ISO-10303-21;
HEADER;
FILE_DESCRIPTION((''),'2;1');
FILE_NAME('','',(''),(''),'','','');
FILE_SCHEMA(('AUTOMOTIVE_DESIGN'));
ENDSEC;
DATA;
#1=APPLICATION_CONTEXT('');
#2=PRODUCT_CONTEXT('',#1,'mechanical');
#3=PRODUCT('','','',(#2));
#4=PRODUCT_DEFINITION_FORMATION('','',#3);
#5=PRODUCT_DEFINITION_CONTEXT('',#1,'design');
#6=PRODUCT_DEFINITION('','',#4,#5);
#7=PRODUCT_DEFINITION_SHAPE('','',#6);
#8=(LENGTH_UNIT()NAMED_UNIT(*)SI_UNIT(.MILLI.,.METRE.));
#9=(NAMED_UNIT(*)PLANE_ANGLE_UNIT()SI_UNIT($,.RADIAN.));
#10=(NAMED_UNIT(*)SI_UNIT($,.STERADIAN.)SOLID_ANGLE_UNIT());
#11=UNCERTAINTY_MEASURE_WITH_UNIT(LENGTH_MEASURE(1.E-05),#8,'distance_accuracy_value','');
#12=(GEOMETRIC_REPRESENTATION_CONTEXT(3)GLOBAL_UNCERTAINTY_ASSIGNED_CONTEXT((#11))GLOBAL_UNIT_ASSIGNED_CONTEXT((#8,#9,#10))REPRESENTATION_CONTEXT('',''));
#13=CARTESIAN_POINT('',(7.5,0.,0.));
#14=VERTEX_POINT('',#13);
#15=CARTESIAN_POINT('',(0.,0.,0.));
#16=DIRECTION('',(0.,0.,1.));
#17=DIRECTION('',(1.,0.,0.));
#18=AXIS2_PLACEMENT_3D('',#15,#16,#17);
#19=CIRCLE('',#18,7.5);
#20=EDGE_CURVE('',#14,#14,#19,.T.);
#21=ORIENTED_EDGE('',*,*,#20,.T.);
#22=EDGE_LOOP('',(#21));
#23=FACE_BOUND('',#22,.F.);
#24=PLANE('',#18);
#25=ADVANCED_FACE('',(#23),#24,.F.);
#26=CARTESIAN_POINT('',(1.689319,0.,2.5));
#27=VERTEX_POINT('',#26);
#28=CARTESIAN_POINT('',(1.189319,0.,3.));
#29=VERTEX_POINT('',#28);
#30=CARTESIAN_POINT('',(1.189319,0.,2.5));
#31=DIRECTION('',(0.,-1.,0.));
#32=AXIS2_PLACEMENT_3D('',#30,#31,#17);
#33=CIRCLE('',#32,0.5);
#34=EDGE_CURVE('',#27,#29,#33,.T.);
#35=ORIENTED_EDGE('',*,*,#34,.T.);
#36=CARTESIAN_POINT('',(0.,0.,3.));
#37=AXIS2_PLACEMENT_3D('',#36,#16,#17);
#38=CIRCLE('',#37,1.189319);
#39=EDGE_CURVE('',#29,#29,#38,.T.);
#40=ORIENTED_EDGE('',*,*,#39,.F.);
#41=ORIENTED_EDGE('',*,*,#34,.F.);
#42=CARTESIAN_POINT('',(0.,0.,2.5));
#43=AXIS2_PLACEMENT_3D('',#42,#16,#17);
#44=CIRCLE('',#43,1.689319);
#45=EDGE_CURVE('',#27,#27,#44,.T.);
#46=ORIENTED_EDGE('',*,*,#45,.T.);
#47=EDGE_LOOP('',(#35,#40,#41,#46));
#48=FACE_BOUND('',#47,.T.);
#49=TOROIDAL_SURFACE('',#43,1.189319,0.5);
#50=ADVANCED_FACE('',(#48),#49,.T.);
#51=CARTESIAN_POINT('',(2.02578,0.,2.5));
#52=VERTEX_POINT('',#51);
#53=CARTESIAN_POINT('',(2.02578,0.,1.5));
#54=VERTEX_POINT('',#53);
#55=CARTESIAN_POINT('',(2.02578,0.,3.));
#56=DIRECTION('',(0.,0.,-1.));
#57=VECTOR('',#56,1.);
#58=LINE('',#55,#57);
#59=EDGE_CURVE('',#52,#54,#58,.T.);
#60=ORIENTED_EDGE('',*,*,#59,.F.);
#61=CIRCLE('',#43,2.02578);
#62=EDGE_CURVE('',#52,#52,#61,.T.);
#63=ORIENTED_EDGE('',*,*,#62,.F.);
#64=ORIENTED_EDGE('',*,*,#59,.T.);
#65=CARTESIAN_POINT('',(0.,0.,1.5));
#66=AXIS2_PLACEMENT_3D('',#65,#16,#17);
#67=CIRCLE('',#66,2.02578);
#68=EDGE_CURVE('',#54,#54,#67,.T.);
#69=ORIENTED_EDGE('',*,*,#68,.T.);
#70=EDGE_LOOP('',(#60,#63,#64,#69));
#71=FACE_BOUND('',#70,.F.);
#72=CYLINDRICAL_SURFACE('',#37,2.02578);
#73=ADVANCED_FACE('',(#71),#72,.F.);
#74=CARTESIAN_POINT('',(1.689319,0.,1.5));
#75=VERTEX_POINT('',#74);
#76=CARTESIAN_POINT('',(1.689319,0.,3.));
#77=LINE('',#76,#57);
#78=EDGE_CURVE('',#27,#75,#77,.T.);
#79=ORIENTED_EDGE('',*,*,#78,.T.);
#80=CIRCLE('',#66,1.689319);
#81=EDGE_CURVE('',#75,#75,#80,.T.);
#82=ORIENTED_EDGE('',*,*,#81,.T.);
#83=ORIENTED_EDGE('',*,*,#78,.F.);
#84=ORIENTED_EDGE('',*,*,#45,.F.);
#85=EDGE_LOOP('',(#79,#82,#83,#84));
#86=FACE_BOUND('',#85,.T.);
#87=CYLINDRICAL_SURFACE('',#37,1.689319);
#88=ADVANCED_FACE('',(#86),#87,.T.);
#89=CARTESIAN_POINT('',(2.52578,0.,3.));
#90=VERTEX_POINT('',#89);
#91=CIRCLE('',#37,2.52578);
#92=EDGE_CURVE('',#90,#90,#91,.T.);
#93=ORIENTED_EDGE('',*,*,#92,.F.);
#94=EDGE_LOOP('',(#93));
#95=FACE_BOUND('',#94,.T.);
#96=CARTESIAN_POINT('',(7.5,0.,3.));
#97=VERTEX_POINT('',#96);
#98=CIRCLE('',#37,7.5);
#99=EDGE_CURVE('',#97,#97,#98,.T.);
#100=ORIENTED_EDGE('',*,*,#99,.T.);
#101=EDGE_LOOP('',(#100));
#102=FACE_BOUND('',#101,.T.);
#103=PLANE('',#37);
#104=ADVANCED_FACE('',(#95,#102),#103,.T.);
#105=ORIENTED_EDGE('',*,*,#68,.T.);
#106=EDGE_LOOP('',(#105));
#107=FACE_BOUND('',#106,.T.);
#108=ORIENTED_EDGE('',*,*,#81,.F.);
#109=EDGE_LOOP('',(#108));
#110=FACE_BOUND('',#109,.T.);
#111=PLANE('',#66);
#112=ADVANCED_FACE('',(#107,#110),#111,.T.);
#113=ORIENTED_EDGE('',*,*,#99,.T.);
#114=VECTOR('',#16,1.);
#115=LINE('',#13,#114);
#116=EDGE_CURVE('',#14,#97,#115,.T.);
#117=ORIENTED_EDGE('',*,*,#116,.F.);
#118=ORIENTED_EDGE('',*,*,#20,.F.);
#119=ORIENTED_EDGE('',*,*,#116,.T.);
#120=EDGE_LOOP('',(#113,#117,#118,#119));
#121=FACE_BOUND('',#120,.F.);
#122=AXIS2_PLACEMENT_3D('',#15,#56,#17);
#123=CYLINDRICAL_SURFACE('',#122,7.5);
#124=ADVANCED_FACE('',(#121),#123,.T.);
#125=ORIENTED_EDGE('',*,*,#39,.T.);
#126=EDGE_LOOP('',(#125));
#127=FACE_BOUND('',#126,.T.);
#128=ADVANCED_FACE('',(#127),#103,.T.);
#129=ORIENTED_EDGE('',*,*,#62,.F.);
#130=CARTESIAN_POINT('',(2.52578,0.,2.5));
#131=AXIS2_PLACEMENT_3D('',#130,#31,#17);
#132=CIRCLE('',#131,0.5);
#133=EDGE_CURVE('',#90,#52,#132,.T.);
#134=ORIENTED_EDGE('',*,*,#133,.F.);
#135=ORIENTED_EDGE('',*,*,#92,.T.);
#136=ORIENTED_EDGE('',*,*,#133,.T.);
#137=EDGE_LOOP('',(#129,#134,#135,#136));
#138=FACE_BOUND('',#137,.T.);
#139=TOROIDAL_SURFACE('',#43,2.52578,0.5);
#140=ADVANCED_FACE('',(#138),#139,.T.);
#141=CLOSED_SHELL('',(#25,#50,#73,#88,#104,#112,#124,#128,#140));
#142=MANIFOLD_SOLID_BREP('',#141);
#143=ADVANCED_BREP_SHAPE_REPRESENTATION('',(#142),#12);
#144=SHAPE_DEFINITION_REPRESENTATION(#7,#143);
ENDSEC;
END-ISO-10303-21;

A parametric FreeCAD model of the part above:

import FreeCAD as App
import Part
import Sketcher

V = App.Vector
Q = App.Units.Quantity


def edges_at(feature, points):
    """Names of the edges that pass closest to the given points."""
    edges = feature.Shape.Edges
    near = lambda p: min(range(len(edges)), key=lambda i: edges[i].distToShape(Part.Vertex(*p))[0])
    return sorted({f"Edge{near(p) + 1}" for p in points})

doc = App.newDocument("Part")
body = doc.addObject("PartDesign::Body", "Body")

# Sketch on XY plane
sketch1 = doc.addObject("Sketcher::SketchObject", "Sketch")
body.addObject(sketch1)
sketch1.AttachmentSupport = (doc.XY_Plane, [""])
sketch1.MapMode = "FlatFace"
sketch1.addGeometry(Part.Circle(V(0, 0, 0), V(0, 0, 1), 7.5), False)
sketch1.addConstraint(Sketcher.Constraint("Coincident", 0, 3, -1, 1))
sketch1.addConstraint(Sketcher.Constraint("Diameter", 0, Q("15 mm")))
pad1 = doc.addObject("PartDesign::Pad", "Pad")
body.addObject(pad1)
pad1.Profile = sketch1
pad1.Length = 3

# Sketch on XY plane
sketch2 = doc.addObject("Sketcher::SketchObject", "Sketch001")
body.addObject(sketch2)
sketch2.AttachmentSupport = (doc.XY_Plane, [""])
sketch2.MapMode = "FlatFace"
sketch2.AttachmentOffset = App.Placement(V(0, 0, 3), App.Rotation())
sketch2.addGeometry(Part.Circle(V(0, 0, 0), V(0, 0, 1), 2.02578), False)
sketch2.addGeometry(Part.Circle(V(0, 0, 0), V(0, 0, 1), 1.689319), False)
sketch2.addConstraint(Sketcher.Constraint("Coincident", 0, 3, -1, 1))
sketch2.addConstraint(Sketcher.Constraint("Coincident", 1, 3, -1, 1))
sketch2.addConstraint(Sketcher.Constraint("Diameter", 0, Q("4.05156 mm")))
sketch2.addConstraint(Sketcher.Constraint("Diameter", 1, Q("3.378637 mm")))
pocket1 = doc.addObject("PartDesign::Pocket", "Pocket")
body.addObject(pocket1)
pocket1.Profile = sketch2
pocket1.Length = 1.5
doc.recompute()

fillet = doc.addObject("PartDesign::Fillet", "Fillet")
body.addObject(fillet)
fillet.Base = (pocket1, edges_at(pocket1, [(-1.689, 0, 3), (-2.026, 0, 3)]))
fillet.Radius = 0.5

doc.recompute()
